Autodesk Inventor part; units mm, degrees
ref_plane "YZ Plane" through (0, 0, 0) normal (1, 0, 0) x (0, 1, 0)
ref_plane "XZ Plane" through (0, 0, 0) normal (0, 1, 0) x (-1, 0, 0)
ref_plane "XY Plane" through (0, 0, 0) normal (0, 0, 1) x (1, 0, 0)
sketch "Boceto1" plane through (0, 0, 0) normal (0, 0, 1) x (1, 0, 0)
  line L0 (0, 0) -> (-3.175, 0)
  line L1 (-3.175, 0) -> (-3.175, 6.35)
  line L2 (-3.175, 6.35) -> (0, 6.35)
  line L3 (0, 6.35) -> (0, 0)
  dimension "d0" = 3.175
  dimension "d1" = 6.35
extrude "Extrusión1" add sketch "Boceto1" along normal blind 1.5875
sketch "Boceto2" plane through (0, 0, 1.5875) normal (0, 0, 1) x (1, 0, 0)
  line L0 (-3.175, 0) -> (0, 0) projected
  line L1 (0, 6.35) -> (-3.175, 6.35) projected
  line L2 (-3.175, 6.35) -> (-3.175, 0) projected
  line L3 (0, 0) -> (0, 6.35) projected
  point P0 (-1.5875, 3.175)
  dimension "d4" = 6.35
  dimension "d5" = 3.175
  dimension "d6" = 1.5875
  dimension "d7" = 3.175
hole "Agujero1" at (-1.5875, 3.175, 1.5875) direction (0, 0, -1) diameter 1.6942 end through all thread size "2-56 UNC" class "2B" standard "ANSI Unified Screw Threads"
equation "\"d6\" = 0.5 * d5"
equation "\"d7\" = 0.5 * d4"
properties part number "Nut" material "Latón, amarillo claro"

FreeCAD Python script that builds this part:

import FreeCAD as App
import Part
import Sketcher

V = App.Vector
Q = App.Units.Quantity

doc = App.newDocument("Part")
params = doc.addObject("Spreadsheet::Sheet", "Params")
for row, (alias, value) in enumerate([
    ("sketch1_height", "0.25 in"),
    ("sketch1_width", "0.125 in"),
    ("pad1_length", "0.0625 in"),
    ("hole_diameter", "0.0667008 in"),
], start=1):
    params.set(f"A{row}", alias)
    params.set(f"B{row}", "=" + value)
    params.setAlias(f"B{row}", alias)

body = doc.addObject("PartDesign::Body", "Body")

sketch1 = doc.addObject("Sketcher::SketchObject", "Sketch")
body.addObject(sketch1)
sketch1.AttachmentSupport = (doc.XY_Plane, [""])
sketch1.MapMode = "FlatFace"
sketch1.addGeometry([
    Part.LineSegment(V(-3.2, 0, 0), V(0, 0, 0)),
    Part.LineSegment(V(0, 0, 0), V(0, 6.3, 0)),
    Part.LineSegment(V(0, 6.3, 0), V(-3.2, 6.3, 0)),
    Part.LineSegment(V(-3.2, 6.3, 0), V(-3.2, 0, 0)),
], False)
sketch1.addConstraint([
    Sketcher.Constraint("Coincident", 0, 2, 1, 1),
    Sketcher.Constraint("Coincident", 1, 2, 2, 1),
    Sketcher.Constraint("Coincident", 2, 2, 3, 1),
    Sketcher.Constraint("Coincident", 3, 2, 0, 1),
    Sketcher.Constraint("Horizontal", 0),
    Sketcher.Constraint("Vertical", 1),
    Sketcher.Constraint("Horizontal", 2),
    Sketcher.Constraint("Vertical", 3),
    Sketcher.Constraint("Coincident", 0, 2, -1, 1),
    Sketcher.Constraint("DistanceY", 1, 1, 1, 2, Q("0.25 in")),
    Sketcher.Constraint("DistanceX", 0, 1, 0, 2, Q("0.125 in")),
])
sketch1.setExpression("Constraints[9]", "Params.sketch1_height")
sketch1.setExpression("Constraints[10]", "Params.sketch1_width")
pad1 = doc.addObject("PartDesign::Pad", "Pad")
body.addObject(pad1)
pad1.Profile = sketch1
pad1.setExpression("Length", "Params.pad1_length")

sketch2 = doc.addObject("Sketcher::SketchObject", "Sketch001")
body.addObject(sketch2)
sketch2.AttachmentSupport = (doc.XY_Plane, [""])
sketch2.MapMode = "FlatFace"
sketch2.AttachmentOffset = App.Placement(V(0, 0, 0.0625 * 25.4), App.Rotation())
sketch2.addGeometry(Part.Circle(V(-1.6, 3.2, 0), V(0, 0, 1), 0.8), False)
sketch2.addConstraint([
    Sketcher.Constraint("Diameter", 0, Q("0.0667 in")),
    Sketcher.Constraint("DistanceX", 0, 3, -1, 1, Q("0.0625 in")),
    Sketcher.Constraint("DistanceY", -1, 1, 0, 3, Q("0.125 in")),
])
doc.recompute()
hole = doc.addObject("PartDesign::Hole", "Hole")
body.addObject(hole)
hole.Profile = sketch2
hole.ThreadType = "None"
hole.setExpression("Diameter", "Params.hole_diameter")
hole.DepthType = "ThroughAll"

doc.recompute()
